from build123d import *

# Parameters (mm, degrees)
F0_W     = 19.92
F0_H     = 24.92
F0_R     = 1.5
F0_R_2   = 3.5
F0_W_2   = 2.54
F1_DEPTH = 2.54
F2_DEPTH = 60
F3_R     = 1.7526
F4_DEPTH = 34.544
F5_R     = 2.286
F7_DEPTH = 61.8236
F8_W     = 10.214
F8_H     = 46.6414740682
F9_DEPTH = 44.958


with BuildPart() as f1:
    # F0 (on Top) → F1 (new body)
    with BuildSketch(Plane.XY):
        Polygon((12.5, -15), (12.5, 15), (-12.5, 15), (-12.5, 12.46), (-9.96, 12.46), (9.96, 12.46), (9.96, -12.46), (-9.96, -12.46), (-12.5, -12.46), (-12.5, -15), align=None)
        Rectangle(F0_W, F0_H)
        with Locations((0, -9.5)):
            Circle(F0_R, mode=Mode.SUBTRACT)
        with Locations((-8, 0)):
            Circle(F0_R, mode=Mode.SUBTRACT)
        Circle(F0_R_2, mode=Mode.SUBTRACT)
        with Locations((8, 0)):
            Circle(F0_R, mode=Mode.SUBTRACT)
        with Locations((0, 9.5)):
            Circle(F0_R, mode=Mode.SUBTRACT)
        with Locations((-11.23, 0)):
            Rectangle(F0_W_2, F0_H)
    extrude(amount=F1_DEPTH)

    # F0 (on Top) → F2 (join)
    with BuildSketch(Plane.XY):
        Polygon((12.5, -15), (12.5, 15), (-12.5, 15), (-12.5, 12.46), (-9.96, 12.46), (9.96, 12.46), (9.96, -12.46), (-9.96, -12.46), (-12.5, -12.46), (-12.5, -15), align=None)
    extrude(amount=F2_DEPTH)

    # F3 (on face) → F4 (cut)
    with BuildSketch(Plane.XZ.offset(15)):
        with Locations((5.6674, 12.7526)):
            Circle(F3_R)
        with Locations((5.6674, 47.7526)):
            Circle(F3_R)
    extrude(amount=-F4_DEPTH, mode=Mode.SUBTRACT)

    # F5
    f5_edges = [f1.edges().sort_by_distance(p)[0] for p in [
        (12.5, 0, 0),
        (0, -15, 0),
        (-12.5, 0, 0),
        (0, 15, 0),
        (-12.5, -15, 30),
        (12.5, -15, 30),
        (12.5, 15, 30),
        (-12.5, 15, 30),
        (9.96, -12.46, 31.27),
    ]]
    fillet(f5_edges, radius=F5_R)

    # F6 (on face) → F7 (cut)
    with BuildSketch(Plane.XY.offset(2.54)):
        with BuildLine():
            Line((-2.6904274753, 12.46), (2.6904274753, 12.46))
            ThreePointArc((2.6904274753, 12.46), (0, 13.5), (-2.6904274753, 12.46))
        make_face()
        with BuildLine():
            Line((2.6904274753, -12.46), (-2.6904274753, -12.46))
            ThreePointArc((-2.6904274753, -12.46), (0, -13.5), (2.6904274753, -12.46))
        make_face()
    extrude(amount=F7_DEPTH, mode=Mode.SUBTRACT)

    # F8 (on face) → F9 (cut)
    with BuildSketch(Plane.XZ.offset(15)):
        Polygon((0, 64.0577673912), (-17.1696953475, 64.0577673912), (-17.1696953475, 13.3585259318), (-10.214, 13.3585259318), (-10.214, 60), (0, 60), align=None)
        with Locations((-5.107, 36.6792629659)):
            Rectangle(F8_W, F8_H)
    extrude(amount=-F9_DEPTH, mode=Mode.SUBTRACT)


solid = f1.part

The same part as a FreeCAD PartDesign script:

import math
import FreeCAD as App
import Part
import Sketcher
from FreeCAD import Vector
Q = App.Units.Quantity


def edges_at(feature, points):
    """Names of the edges that pass closest to the given points."""
    edges = feature.Shape.Edges
    near = lambda p: min(range(len(edges)), key=lambda i: edges[i].distToShape(Part.Vertex(*p))[0])
    return sorted({f"Edge{near(p) + 1}" for p in points})


def add_polygon(sketch, points):
    """Adds a closed chain of lines whose ends are joined by coincident constraints."""
    first, n = sketch.GeometryCount, len(points)
    for a, b in zip(points, points[1:] + points[:1]):
        sketch.addGeometry(Part.LineSegment(App.Vector(*a, 0), App.Vector(*b, 0)), False)
    for i in range(n):
        sketch.addConstraint(Sketcher.Constraint("Coincident", first + i, 2, first + (i + 1) % n, 1))

doc = App.newDocument("Part")
body = doc.addObject("PartDesign::Body", "Body")

# Sketch on XY plane
sketch1 = body.newObject("Sketcher::SketchObject", "Sketch")
sketch1.AttachmentSupport = (doc.getObject("XY_Plane"), [""])
sketch1.MapMode = "FlatFace"
add_polygon(sketch1, [(12.5, -15), (12.5, 15), (-12.5, 15), (-12.5, -15)])  # lines 0-3
sketch1.addGeometry(Part.Circle(Vector(0, -9.5, 0), Vector(0, 0, 1), 1.5), False)  # 4
sketch1.addGeometry(Part.Circle(Vector(-8, 0, 0), Vector(0, 0, 1), 1.5), False)  # 5
sketch1.addGeometry(Part.Circle(Vector(0, 0, 0), Vector(0, 0, 1), 3.5), False)  # 6
sketch1.addGeometry(Part.Circle(Vector(8, 0, 0), Vector(0, 0, 1), 1.5), False)  # 7
sketch1.addGeometry(Part.Circle(Vector(0, 9.5, 0), Vector(0, 0, 1), 1.5), False)  # 8
sketch1.addConstraint([
    Sketcher.Constraint("Vertical", 0),
    Sketcher.Constraint("Horizontal", 1),
    Sketcher.Constraint("Vertical", 2),
    Sketcher.Constraint("Horizontal", 3),
    Sketcher.Constraint("Coincident", 6, 3, -1, 1),
    Sketcher.Constraint("Equal", 4, 5),
    Sketcher.Constraint("Equal", 5, 7),
    Sketcher.Constraint("Equal", 7, 8),
    Sketcher.Constraint("Symmetric", 5, 3, 7, 3, -1, 1),
    Sketcher.Constraint("Symmetric", 4, 3, 8, 3, -1, 1),
    Sketcher.Constraint("Symmetric", 0, 2, 2, 2, -1, 1),
    Sketcher.Constraint("PointOnObject", 4, 3, -2),
    Sketcher.Constraint("PointOnObject", 5, 3, -1),
    Sketcher.Constraint("Diameter", 4, Q("3 mm")),
    Sketcher.Constraint("Diameter", 6, Q("7 mm")),
    Sketcher.Constraint("DistanceX", 1, 2, 1, 1, Q("25 mm")),
    Sketcher.Constraint("DistanceY", 0, 1, 0, 2, Q("30 mm")),
    Sketcher.Constraint("DistanceX", 5, 3, -1, 1, Q("8 mm")),
    Sketcher.Constraint("DistanceY", 4, 3, 8, 3, Q("19 mm")),
])
pad1 = body.newObject("PartDesign::Pad", "Pad")
pad1.Profile = sketch1
pad1.Length = 2.54

# Sketch on XY plane
sketch2 = body.newObject("Sketcher::SketchObject", "Sketch001")
sketch2.AttachmentSupport = (doc.getObject("XY_Plane"), [""])
sketch2.MapMode = "FlatFace"
add_polygon(sketch2, [(12.5, -15), (12.5, 15), (-12.5, 15), (-12.5, 12.46), (9.96, 12.46), (9.96, -12.46), (-12.5, -12.46), (-12.5, -15)])  # lines 0-7
sketch2.addConstraint([
    Sketcher.Constraint("Vertical", 0),
    Sketcher.Constraint("Horizontal", 1),
    Sketcher.Constraint("Vertical", 2),
    Sketcher.Constraint("Horizontal", 3),
    Sketcher.Constraint("Vertical", 4),
    Sketcher.Constraint("Horizontal", 5),
    Sketcher.Constraint("Vertical", 6),
    Sketcher.Constraint("Horizontal", 7),
    Sketcher.Constraint("Symmetric", 0, 2, 6, 2, -1, 1),
    Sketcher.Constraint("Symmetric", 2, 2, 5, 2, -1),
    Sketcher.Constraint("DistanceX", 1, 2, 1, 1, Q("25 mm")),
    Sketcher.Constraint("DistanceY", 0, 1, 0, 2, Q("30 mm")),
    Sketcher.Constraint("DistanceX", 3, 1, 3, 2, Q("22.46 mm")),
    Sketcher.Constraint("DistanceY", 2, 2, 2, 1, Q("2.54 mm")),
])
pad2 = body.newObject("PartDesign::Pad", "Pad001")
pad2.Profile = sketch2
pad2.Length = 60

# Sketch on XZ plane
sketch3 = body.newObject("Sketcher::SketchObject", "Sketch002")
sketch3.AttachmentSupport = (doc.getObject("XZ_Plane"), [""])
sketch3.MapMode = "FlatFace"
sketch3.AttachmentOffset = App.Placement(Vector(0, 0, 15), App.Rotation())
sketch3.addGeometry([
    Part.Circle(Vector(5.6674, 12.7526, 0), Vector(0, 0, 1), 1.7526),
    Part.Circle(Vector(5.6674, 47.7526, 0), Vector(0, 0, 1), 1.7526),
], False)
sketch3.addConstraint([
    Sketcher.Constraint("Equal", 0, 1),
    Sketcher.Constraint("Vertical", 0, 3, 1, 3),
    Sketcher.Constraint("DistanceY", 0, 3, 1, 3, Q("35 mm")),
    Sketcher.Constraint("Diameter", 0, Q("3.5052 mm")),
    Sketcher.Constraint("DistanceX", -1, 1, 0, 3, Q("5.6674 mm")),
    Sketcher.Constraint("DistanceY", -1, 1, 0, 3, Q("12.7526 mm")),
])
pocket1 = body.newObject("PartDesign::Pocket", "Pocket")
pocket1.Profile = sketch3
pocket1.Length = 34.544
doc.recompute()

fillet = body.newObject("PartDesign::Fillet", "Fillet")
fillet.Base = (pocket1, edges_at(pocket1, [
    (12.5, 0, 0),
    (0, -15, 0),
    (-12.5, 0, 0),
    (0, 15, 0),
    (-12.5, -15, 30),
    (12.5, -15, 30),
    (12.5, 15, 30),
    (-12.5, 15, 30),
    (9.96, -12.46, 31.27),
]))
fillet.Radius = 2.286

# Sketch on XY plane
sketch4 = body.newObject("Sketcher::SketchObject", "Sketch003")
sketch4.AttachmentSupport = (doc.getObject("XY_Plane"), [""])
sketch4.MapMode = "FlatFace"
sketch4.AttachmentOffset = App.Placement(Vector(0, 0, 2.54), App.Rotation())
sketch4.addGeometry([
    Part.LineSegment(Vector(-2.690427, 12.46, 0), Vector(2.690427, 12.46, 0)),
    Part.ArcOfCircle(Part.Circle(Vector(0, 9.5, 0), Vector(0, 0, 1), 4), math.radians(47.731416), math.radians(132.268584)),
    Part.LineSegment(Vector(2.690427, -12.46, 0), Vector(-2.690427, -12.46, 0)),
    Part.ArcOfCircle(Part.Circle(Vector(0, -9.5, 0), Vector(0, 0, 1), 4), math.radians(-132.268584), math.radians(-47.731416)),
], False)
sketch4.addConstraint([
    Sketcher.Constraint("Coincident", 0, 1, 1, 2),
    Sketcher.Constraint("Coincident", 1, 1, 0, 2),
    Sketcher.Constraint("Coincident", 2, 1, 3, 2),
    Sketcher.Constraint("Coincident", 3, 1, 2, 2),
    Sketcher.Constraint("Horizontal", 0),
    Sketcher.Constraint("Horizontal", 2),
    Sketcher.Constraint("Equal", 1, 3),
    Sketcher.Constraint("Symmetric", 1, 3, 3, 3, -1, 1),
    Sketcher.Constraint("Symmetric", 1, 1, 2, 1, -1),
    Sketcher.Constraint("Radius", 1, Q("4 mm")),
    Sketcher.Constraint("DistanceY", 3, 3, 1, 3, Q("19 mm")),
    Sketcher.Constraint("DistanceY", -1, 1, 0, 1, Q("12.46 mm")),
])
pocket2 = body.newObject("PartDesign::Pocket", "Pocket001")
pocket2.Profile = sketch4
pocket2.Length = 61.8236
pocket2.Reversed = True

# Sketch on XZ plane
sketch5 = body.newObject("Sketcher::SketchObject", "Sketch004")
sketch5.AttachmentSupport = (doc.getObject("XZ_Plane"), [""])
sketch5.MapMode = "FlatFace"
sketch5.AttachmentOffset = App.Placement(Vector(0, 0, 15), App.Rotation())
add_polygon(sketch5, [(0, 64.057767), (-17.169695, 64.057767), (-17.169695, 13.358526), (0, 13.358526)])  # lines 0-3
sketch5.addConstraint([
    Sketcher.Constraint("Horizontal", 0),
    Sketcher.Constraint("Vertical", 1),
    Sketcher.Constraint("Horizontal", 2),
    Sketcher.Constraint("Vertical", 3),
    Sketcher.Constraint("PointOnObject", 2, 2, -2),
    Sketcher.Constraint("DistanceY", 1, 2, 1, 1, Q("50.699241 mm")),
    Sketcher.Constraint("DistanceX", 0, 2, 0, 1, Q("17.169695 mm")),
    Sketcher.Constraint("DistanceY", -1, 1, 0, 2, Q("64.057767 mm")),
])
pocket3 = body.newObject("PartDesign::Pocket", "Pocket002")
pocket3.Profile = sketch5
pocket3.Length = 44.958

doc.recompute()
